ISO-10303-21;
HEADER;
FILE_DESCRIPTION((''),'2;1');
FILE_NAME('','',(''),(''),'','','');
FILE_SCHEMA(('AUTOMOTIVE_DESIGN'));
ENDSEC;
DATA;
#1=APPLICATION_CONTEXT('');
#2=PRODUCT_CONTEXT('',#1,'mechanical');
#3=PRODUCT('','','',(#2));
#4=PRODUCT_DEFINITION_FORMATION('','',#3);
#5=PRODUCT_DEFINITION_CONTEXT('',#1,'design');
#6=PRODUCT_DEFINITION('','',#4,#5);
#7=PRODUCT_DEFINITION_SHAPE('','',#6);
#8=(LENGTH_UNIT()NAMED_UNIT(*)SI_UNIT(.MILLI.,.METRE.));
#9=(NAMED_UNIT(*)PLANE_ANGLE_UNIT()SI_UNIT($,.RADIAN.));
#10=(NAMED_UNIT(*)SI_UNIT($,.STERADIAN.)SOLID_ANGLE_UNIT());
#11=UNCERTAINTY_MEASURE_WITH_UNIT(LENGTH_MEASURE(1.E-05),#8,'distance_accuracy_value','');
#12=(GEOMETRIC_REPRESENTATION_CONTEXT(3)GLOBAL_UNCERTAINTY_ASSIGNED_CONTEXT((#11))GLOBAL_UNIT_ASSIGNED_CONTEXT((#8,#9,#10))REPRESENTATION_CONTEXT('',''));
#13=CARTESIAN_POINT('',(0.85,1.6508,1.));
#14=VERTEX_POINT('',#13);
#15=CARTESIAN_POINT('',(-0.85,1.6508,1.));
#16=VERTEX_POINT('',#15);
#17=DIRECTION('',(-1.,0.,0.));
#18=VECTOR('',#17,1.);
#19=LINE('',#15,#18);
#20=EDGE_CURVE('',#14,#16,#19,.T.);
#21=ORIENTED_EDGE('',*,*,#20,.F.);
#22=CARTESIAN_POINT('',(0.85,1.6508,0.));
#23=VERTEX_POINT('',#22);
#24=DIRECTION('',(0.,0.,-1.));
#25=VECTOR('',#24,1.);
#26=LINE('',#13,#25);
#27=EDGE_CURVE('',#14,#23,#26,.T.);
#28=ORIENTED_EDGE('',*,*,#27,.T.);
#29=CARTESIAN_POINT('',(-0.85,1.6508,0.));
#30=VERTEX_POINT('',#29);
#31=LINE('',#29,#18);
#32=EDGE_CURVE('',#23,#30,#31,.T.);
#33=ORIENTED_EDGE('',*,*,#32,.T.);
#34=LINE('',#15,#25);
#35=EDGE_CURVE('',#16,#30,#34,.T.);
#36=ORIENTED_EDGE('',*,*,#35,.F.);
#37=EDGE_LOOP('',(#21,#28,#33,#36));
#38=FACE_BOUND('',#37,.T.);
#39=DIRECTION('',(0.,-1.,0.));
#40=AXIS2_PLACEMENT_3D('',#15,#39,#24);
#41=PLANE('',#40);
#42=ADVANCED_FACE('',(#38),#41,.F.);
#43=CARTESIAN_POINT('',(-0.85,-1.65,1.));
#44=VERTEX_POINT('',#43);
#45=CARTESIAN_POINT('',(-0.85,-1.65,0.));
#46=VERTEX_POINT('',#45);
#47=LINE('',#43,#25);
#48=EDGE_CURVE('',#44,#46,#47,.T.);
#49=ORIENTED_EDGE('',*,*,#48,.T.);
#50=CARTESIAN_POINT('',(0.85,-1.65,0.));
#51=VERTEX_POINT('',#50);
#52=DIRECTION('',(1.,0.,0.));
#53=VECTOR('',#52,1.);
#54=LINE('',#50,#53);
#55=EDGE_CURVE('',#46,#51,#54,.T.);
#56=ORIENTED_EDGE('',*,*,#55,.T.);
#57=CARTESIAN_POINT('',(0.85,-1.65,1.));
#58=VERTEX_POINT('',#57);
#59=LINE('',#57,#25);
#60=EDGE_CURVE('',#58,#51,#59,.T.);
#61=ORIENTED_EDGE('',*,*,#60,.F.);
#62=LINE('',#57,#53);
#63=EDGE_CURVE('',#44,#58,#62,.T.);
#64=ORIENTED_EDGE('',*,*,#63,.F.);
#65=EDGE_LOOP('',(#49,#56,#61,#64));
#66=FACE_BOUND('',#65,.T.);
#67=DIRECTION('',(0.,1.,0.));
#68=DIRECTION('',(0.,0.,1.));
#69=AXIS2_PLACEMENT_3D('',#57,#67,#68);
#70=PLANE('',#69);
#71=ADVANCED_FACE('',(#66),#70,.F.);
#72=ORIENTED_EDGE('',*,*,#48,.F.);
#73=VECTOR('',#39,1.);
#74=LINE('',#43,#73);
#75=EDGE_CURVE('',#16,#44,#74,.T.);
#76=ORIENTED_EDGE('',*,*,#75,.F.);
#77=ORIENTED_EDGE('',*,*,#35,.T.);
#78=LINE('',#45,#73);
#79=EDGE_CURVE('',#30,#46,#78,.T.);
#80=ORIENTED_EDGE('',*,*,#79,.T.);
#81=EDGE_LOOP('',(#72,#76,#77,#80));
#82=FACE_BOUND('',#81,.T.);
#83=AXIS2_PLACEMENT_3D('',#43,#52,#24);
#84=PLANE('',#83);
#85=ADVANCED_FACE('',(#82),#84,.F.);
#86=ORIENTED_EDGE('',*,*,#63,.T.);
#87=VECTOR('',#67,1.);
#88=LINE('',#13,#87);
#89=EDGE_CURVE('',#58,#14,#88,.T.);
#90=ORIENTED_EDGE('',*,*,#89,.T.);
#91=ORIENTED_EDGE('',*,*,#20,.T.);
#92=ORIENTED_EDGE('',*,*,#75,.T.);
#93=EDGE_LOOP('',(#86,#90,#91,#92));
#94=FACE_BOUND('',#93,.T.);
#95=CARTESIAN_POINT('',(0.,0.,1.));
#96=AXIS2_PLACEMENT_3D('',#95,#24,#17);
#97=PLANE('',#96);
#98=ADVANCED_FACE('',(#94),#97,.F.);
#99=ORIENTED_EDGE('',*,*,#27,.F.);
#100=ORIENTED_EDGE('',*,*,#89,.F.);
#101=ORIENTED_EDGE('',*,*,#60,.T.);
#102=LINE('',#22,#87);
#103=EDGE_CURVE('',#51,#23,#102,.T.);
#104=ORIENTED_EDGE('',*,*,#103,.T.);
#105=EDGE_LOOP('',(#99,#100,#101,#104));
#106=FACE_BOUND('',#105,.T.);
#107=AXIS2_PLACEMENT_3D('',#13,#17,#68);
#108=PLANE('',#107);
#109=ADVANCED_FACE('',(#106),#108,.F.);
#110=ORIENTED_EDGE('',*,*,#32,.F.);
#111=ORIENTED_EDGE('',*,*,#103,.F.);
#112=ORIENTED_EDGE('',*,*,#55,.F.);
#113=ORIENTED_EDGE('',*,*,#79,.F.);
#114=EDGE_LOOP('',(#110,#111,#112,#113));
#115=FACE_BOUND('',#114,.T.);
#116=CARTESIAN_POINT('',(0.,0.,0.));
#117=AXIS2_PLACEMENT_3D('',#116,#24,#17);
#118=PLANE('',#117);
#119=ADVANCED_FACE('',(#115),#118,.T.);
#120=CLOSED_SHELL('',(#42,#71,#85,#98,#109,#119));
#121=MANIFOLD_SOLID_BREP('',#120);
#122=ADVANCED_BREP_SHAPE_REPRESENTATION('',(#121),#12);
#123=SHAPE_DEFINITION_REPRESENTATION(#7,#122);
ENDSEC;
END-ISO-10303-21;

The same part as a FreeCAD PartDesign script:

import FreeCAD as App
import Part
import Sketcher
Q = App.Units.Quantity


def add_polygon(sketch, points):
    """Adds a closed chain of lines whose ends are joined by coincident constraints."""
    first, n = sketch.GeometryCount, len(points)
    for a, b in zip(points, points[1:] + points[:1]):
        sketch.addGeometry(Part.LineSegment(App.Vector(*a, 0), App.Vector(*b, 0)), False)
    for i in range(n):
        sketch.addConstraint(Sketcher.Constraint("Coincident", first + i, 2, first + (i + 1) % n, 1))

doc = App.newDocument("Part")
params = doc.addObject("Spreadsheet::Sheet", "Params")
for row, (alias, value) in enumerate([
    ("sketch1_width", "1.7 mm"),
    ("pad1_length", "1 mm"),
], start=1):
    params.set(f"A{row}", alias)
    params.set(f"B{row}", "=" + value)
    params.setAlias(f"B{row}", alias)

body = doc.addObject("PartDesign::Body", "Body")

# Sketch on XY plane
sketch1 = body.newObject("Sketcher::SketchObject", "Sketch")
sketch1.AttachmentSupport = (doc.getObject("XY_Plane"), [""])
sketch1.MapMode = "FlatFace"
add_polygon(sketch1, [(-0.8, 1.7), (-0.8, -1.6), (0.8, -1.6), (0.8, 1.7)])  # lines 0-3
sketch1.addConstraint([
    Sketcher.Constraint("Vertical", 0),
    Sketcher.Constraint("Horizontal", 1),
    Sketcher.Constraint("Vertical", 2),
    Sketcher.Constraint("Horizontal", 3),
    Sketcher.Constraint("DistanceX", 1, 1, 1, 2, Q("1.7 mm")),
    Sketcher.Constraint("DistanceX", 0, 2, -1, 1, Q("0.85 mm")),
    Sketcher.Constraint("DistanceY", 0, 2, -1, 1, Q("1.65 mm")),
    Sketcher.Constraint("DistanceY", 0, 2, 0, 1, Q("3.3008 mm")),
])
sketch1.setExpression("Constraints[8]", "Params.sketch1_width")
pad1 = body.newObject("PartDesign::Pad", "Pad")
pad1.Profile = sketch1
pad1.setExpression("Length", "Params.pad1_length")

doc.recompute()
